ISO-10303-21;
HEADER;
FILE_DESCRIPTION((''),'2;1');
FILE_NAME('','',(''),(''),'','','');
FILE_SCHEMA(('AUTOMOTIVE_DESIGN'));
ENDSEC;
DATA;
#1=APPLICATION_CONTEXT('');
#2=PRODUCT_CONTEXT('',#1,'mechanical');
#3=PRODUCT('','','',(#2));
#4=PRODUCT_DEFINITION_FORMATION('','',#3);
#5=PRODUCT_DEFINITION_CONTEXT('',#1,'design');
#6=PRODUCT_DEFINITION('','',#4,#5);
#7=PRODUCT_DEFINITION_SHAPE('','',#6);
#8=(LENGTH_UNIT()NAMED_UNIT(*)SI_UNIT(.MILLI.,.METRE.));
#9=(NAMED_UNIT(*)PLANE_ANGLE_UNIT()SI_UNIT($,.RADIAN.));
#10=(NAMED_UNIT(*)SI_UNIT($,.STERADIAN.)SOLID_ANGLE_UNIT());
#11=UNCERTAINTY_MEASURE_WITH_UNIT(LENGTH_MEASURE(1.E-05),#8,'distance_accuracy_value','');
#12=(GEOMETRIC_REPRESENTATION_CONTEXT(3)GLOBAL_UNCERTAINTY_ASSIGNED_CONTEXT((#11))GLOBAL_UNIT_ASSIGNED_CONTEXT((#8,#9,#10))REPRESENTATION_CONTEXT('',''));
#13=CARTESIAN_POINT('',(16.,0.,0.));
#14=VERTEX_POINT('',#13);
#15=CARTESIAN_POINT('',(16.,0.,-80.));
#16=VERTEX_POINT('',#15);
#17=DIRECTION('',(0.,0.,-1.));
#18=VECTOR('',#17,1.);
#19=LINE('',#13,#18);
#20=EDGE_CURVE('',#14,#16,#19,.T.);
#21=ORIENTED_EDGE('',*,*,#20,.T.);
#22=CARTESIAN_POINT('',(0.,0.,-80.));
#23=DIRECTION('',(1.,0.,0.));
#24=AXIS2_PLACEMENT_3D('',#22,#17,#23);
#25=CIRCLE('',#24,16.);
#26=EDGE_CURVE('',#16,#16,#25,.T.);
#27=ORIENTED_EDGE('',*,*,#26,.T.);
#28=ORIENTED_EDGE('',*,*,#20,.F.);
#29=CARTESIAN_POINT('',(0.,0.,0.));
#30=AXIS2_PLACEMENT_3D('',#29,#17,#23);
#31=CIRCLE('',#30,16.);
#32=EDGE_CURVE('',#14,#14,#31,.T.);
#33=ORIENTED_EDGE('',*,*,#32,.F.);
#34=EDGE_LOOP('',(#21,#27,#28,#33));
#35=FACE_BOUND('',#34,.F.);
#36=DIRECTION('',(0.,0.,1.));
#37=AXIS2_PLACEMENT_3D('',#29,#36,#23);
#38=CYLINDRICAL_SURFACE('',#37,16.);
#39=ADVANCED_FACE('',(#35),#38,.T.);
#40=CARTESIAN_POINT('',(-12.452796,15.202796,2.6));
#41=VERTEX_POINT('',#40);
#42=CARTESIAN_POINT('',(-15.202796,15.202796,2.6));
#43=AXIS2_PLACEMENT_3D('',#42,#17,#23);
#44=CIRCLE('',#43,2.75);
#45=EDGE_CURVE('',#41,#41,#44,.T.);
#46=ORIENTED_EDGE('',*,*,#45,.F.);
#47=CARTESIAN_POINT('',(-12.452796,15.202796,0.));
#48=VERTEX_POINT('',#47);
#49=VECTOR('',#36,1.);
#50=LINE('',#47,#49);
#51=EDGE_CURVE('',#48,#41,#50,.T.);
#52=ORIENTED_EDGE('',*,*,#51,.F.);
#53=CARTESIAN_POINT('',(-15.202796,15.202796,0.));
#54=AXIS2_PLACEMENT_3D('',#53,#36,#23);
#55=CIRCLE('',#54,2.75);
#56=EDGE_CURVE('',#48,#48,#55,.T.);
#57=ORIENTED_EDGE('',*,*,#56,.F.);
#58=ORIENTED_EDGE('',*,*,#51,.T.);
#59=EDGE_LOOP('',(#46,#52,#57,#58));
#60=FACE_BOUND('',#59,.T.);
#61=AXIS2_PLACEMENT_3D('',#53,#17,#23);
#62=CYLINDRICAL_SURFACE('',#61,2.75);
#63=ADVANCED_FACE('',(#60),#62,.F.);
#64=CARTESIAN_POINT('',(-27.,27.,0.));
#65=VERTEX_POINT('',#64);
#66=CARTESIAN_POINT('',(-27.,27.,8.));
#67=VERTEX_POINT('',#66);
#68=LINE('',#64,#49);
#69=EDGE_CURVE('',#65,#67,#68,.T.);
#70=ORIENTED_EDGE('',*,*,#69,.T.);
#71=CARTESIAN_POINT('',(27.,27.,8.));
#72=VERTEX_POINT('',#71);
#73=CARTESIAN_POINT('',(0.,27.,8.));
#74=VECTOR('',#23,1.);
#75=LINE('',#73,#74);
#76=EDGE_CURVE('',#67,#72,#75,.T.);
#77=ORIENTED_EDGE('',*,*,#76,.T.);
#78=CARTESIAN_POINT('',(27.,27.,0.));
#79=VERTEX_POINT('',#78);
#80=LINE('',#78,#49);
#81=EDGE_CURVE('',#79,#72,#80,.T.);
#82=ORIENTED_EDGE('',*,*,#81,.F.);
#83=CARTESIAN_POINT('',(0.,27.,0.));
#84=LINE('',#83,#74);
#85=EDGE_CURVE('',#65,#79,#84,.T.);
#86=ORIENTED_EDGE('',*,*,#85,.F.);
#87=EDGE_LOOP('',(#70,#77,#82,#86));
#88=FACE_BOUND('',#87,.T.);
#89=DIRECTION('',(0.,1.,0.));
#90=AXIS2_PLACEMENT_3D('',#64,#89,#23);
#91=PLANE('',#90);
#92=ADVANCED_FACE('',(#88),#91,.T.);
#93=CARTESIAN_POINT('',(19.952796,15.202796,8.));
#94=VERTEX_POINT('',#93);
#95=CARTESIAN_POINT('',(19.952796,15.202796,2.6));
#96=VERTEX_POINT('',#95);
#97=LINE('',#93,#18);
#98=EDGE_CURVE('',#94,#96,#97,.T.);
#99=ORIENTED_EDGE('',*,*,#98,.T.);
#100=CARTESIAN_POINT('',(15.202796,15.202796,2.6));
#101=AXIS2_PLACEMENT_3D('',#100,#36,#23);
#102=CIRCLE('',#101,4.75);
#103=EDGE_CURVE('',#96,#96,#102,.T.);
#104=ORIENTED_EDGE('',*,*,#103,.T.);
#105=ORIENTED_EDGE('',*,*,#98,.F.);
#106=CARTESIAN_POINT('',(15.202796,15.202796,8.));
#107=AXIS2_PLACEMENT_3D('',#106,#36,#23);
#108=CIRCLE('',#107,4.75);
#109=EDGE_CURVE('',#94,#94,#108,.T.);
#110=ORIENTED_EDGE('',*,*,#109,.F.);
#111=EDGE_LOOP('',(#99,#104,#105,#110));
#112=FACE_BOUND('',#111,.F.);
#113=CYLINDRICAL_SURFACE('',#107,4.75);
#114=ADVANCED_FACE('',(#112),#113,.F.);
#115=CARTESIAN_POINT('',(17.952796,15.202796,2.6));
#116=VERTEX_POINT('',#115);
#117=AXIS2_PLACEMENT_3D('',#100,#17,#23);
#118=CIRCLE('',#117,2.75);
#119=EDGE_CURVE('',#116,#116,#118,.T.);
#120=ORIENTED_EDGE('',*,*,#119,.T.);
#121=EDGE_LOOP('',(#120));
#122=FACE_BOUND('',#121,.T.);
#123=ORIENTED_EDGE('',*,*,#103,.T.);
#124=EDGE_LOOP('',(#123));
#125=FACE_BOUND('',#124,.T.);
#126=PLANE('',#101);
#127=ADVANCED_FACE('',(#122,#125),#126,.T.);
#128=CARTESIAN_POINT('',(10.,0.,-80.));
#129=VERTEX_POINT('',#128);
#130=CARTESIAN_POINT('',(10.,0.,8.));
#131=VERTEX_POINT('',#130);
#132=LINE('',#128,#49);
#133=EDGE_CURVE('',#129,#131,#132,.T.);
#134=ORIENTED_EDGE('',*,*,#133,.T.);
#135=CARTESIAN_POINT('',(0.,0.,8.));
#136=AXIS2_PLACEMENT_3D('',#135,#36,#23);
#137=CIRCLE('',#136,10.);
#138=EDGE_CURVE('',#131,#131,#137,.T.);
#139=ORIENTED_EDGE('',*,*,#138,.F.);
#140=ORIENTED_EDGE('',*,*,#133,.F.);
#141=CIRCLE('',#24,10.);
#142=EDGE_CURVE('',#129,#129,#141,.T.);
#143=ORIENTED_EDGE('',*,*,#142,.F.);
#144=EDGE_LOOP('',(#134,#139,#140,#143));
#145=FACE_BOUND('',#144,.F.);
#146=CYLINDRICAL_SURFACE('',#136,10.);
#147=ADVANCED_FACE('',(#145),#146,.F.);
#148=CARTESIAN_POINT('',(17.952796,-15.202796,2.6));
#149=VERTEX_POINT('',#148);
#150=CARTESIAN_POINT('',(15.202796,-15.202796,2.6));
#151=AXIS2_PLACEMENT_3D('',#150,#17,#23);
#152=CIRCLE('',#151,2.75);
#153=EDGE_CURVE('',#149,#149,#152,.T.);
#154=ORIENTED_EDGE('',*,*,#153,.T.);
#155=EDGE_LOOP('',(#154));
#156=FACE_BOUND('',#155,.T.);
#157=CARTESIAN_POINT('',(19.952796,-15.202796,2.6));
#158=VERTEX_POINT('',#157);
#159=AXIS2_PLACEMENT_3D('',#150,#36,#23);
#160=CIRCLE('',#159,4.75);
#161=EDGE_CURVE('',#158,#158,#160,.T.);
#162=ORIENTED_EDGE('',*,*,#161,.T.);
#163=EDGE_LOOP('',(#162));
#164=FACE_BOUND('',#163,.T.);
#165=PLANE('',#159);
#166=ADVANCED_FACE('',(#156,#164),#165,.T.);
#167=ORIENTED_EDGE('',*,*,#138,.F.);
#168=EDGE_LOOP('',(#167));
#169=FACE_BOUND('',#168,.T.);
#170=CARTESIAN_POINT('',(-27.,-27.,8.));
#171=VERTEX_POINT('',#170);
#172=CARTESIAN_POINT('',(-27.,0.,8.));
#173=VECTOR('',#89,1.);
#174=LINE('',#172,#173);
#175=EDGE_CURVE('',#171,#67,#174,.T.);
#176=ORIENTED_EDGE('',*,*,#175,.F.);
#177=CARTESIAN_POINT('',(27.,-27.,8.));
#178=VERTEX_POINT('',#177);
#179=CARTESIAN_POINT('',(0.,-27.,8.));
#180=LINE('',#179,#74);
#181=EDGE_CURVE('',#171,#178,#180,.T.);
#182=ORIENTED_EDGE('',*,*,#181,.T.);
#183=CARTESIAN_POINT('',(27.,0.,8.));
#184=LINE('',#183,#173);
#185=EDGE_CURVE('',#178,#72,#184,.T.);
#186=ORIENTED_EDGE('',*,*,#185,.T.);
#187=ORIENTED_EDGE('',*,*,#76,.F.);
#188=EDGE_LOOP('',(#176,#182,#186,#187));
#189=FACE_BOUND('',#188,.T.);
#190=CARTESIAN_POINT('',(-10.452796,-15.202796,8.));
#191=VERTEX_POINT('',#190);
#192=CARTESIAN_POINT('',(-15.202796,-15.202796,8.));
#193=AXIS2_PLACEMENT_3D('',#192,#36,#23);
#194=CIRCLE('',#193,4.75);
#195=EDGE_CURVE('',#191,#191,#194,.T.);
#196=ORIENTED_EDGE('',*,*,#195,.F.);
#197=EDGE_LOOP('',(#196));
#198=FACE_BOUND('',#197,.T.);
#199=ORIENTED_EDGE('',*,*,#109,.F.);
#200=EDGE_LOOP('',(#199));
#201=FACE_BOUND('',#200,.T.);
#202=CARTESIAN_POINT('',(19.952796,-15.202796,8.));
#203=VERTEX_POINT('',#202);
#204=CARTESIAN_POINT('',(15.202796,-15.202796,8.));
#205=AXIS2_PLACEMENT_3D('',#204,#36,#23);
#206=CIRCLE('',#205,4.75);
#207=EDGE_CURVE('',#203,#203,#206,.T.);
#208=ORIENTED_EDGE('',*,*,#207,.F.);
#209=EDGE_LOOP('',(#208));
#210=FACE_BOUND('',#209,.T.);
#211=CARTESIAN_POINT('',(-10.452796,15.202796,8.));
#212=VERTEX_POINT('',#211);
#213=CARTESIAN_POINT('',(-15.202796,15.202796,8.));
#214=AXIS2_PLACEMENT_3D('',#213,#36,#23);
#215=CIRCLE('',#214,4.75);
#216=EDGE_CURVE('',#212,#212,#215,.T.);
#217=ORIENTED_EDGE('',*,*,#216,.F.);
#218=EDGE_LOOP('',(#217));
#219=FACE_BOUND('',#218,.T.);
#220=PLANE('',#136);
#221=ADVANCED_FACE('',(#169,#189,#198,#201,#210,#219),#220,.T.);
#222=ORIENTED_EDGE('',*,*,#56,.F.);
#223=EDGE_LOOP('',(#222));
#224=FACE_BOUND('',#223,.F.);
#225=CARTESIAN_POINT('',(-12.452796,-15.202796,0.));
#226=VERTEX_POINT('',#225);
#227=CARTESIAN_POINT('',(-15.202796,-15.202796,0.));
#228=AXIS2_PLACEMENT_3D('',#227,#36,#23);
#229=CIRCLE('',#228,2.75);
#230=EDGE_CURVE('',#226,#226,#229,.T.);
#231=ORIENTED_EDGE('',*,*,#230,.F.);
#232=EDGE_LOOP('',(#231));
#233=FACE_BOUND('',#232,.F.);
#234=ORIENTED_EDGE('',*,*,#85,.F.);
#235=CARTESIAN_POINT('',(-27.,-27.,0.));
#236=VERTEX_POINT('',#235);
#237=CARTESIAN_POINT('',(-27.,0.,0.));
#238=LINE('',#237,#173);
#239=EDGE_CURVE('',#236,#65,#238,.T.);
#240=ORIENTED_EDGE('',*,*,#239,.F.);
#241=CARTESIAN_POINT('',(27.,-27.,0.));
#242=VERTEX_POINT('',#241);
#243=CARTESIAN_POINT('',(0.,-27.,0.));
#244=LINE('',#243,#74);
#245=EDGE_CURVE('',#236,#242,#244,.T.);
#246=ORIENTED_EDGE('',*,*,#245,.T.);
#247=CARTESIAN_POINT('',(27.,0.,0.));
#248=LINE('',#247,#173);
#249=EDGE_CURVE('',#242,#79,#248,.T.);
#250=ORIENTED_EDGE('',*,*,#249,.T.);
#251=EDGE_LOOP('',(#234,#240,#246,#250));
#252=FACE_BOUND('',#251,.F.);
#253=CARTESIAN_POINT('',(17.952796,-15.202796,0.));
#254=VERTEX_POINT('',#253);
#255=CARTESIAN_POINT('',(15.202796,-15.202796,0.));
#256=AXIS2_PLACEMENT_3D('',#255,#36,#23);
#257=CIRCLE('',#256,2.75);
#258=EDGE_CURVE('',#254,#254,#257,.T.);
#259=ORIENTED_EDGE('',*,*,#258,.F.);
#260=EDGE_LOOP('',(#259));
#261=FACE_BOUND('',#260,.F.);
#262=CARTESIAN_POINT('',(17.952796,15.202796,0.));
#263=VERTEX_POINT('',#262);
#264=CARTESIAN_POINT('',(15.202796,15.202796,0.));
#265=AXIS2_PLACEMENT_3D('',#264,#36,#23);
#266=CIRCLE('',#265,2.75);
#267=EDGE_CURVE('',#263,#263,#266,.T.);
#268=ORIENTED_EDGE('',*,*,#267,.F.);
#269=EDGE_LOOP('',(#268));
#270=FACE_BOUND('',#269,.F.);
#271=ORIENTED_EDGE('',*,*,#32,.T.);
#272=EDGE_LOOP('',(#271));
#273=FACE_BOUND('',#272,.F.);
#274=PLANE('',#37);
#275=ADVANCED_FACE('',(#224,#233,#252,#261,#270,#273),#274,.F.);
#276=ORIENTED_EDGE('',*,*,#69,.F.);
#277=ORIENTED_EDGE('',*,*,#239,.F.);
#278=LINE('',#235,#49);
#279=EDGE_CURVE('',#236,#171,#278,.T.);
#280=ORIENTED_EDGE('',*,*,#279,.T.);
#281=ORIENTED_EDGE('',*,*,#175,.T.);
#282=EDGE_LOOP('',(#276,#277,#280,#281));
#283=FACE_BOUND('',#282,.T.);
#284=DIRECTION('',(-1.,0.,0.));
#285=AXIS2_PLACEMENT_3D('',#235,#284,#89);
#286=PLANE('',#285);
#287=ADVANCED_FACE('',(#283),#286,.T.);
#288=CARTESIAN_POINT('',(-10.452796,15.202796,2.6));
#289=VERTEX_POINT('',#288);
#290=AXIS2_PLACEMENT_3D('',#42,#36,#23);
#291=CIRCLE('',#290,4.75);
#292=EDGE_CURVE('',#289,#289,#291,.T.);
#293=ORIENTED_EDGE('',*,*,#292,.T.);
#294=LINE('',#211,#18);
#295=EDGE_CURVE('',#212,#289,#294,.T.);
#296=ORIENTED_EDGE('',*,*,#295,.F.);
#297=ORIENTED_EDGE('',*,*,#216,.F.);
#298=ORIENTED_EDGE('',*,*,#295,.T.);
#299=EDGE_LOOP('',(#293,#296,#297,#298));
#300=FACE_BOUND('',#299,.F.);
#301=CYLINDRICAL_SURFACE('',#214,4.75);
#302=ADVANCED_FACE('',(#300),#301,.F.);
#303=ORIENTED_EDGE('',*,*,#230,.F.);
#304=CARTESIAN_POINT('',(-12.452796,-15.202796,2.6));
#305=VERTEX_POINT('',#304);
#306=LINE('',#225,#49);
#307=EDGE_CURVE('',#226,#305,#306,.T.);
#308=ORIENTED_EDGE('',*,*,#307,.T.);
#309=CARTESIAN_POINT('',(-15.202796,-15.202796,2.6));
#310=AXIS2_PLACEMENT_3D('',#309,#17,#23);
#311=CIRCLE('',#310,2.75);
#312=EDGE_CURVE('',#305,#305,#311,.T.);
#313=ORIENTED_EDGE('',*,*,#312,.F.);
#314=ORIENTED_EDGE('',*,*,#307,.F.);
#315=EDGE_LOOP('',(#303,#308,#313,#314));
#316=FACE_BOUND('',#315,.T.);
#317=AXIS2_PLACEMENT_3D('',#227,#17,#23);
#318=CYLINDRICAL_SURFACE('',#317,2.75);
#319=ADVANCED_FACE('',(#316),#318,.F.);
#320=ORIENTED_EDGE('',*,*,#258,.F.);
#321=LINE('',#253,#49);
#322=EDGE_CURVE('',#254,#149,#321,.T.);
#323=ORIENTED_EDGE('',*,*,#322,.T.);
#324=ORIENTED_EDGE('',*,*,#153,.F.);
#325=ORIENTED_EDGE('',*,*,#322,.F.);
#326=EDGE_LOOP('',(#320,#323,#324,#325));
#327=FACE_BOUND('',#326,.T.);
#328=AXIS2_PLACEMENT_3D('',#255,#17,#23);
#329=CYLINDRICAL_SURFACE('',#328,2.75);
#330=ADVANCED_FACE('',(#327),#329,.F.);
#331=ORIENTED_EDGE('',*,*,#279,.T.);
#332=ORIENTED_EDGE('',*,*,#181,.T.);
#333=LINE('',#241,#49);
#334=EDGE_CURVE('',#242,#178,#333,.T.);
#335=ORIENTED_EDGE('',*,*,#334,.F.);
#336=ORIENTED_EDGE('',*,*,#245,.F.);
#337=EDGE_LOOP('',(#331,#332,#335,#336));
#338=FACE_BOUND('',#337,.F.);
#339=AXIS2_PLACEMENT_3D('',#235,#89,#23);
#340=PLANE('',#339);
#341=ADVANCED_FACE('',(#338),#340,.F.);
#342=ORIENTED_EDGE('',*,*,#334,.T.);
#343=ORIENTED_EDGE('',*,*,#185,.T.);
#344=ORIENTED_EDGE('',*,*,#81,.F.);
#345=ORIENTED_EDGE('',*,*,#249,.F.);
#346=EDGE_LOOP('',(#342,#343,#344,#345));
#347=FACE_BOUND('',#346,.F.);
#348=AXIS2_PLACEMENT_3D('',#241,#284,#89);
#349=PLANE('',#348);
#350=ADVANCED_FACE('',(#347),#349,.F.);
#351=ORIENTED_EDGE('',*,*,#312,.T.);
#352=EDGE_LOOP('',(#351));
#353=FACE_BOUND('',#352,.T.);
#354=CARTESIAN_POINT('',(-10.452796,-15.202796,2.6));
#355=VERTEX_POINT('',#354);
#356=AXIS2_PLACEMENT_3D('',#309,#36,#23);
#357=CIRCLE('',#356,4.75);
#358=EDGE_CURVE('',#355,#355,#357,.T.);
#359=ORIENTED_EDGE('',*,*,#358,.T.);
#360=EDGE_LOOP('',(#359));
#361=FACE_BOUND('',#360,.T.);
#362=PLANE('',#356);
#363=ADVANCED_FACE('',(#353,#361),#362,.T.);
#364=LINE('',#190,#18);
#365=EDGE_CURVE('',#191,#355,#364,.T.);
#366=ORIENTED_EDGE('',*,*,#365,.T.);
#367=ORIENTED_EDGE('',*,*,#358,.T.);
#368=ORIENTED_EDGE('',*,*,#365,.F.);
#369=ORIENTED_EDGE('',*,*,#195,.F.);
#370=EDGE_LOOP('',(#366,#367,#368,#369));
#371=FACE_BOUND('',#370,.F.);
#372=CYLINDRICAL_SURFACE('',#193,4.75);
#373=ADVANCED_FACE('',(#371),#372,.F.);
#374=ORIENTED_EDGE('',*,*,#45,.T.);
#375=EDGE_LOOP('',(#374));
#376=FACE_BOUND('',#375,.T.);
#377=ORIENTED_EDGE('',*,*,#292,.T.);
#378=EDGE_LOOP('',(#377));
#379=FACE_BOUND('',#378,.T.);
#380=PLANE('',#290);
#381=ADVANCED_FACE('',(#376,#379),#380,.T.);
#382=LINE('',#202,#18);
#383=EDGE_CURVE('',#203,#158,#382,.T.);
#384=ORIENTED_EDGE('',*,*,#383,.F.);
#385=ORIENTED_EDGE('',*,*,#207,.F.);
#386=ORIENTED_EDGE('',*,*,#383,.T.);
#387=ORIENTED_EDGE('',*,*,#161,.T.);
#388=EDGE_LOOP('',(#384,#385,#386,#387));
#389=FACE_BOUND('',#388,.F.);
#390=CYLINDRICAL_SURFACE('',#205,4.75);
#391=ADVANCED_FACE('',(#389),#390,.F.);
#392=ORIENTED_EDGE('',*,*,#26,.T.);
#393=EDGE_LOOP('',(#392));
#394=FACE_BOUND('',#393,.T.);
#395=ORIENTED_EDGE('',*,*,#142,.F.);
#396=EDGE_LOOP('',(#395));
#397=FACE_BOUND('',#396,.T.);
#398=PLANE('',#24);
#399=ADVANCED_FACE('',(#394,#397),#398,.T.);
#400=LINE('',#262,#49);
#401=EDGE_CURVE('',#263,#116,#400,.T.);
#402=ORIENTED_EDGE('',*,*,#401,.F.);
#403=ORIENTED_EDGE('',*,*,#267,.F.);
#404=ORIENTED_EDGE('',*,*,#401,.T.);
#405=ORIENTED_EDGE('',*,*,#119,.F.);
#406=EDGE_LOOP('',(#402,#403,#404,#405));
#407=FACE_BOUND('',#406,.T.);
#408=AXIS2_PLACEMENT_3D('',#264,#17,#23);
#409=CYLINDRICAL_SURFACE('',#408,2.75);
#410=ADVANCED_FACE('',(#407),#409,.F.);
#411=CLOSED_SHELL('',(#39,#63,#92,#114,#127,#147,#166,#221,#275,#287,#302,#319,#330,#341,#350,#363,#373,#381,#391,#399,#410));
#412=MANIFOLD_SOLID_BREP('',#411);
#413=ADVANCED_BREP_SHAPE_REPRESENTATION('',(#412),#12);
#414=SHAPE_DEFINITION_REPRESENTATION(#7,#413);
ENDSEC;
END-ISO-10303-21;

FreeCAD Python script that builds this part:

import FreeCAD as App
import Part
import Sketcher
from FreeCAD import Vector


def add_polygon(sketch, points):
    """Adds a closed chain of lines whose ends are joined by coincident constraints."""
    first, n = sketch.GeometryCount, len(points)
    for a, b in zip(points, points[1:] + points[:1]):
        sketch.addGeometry(Part.LineSegment(App.Vector(*a, 0), App.Vector(*b, 0)), False)
    for i in range(n):
        sketch.addConstraint(Sketcher.Constraint("Coincident", first + i, 2, first + (i + 1) % n, 1))

doc = App.newDocument("Part")
body = doc.addObject("PartDesign::Body", "Body")

sketch1 = body.newObject("Sketcher::SketchObject", "Sketch")
sketch1.AttachmentSupport = (doc.getObject("XY_Plane"), [""])
sketch1.MapMode = "FlatFace"
add_polygon(sketch1, [(-27, 27), (-27, -27), (27, -27), (27, 27)])
sketch1.addGeometry(Part.Circle(Vector(-15.2, -15.2, 0), Vector(0, 0, 1), 2.8), False)
sketch1.addGeometry(Part.Circle(Vector(15.2, -15.2, 0), Vector(0, 0, 1), 2.8), False)
sketch1.addGeometry(Part.Circle(Vector(-15.2, 15.2, 0), Vector(0, 0, 1), 2.8), False)
sketch1.addGeometry(Part.Circle(Vector(15.2, 15.2, 0), Vector(0, 0, 1), 2.8), False)
sketch1.addConstraint([
    Sketcher.Constraint("Vertical", 0),
    Sketcher.Constraint("Horizontal", 1),
    Sketcher.Constraint("Vertical", 2),
    Sketcher.Constraint("Horizontal", 3),
    Sketcher.Constraint("Equal", 4, 5),
    Sketcher.Constraint("Equal", 5, 6),
    Sketcher.Constraint("Equal", 6, 7),
    Sketcher.Constraint("Symmetric", 5, 3, 6, 3, -1, 1),
    Sketcher.Constraint("Symmetric", 4, 3, 7, 3, -1, 1),
    Sketcher.Constraint("Symmetric", 0, 2, 2, 2, -1, 1),
    Sketcher.Constraint("Symmetric", 4, 3, 5, 3, -2),
    Sketcher.Constraint("Equal", 3, 0),
    Sketcher.Constraint("Diameter", 4, 5.5),
    Sketcher.Constraint("DistanceX", 1, 1, 1, 2, 54.0),
    Sketcher.Constraint("DistanceX", 4, 3, 5, 3, 30.405592),
    Sketcher.Constraint("DistanceY", 4, 3, 6, 3, 30.405592),
])
pad1 = body.newObject("PartDesign::Pad", "Pad")
pad1.Profile = sketch1
pad1.Length = 8

sketch2 = body.newObject("Sketcher::SketchObject", "Sketch001")
sketch2.AttachmentSupport = (doc.getObject("XY_Plane"), [""])
sketch2.MapMode = "FlatFace"
sketch2.addGeometry([
    Part.Circle(Vector(0, 0, 0), Vector(0, 0, 1), 16),
    Part.Circle(Vector(0, 0, 0), Vector(0, 0, 1), 10),
], False)
sketch2.addConstraint([
    Sketcher.Constraint("Coincident", 0, 3, -1, 1),
    Sketcher.Constraint("Coincident", 1, 3, -1, 1),
    Sketcher.Constraint("Diameter", 0, 32.0),
    Sketcher.Constraint("Diameter", 1, 20.0),
])
pad2 = body.newObject("PartDesign::Pad", "Pad001")
pad2.Profile = sketch2
pad2.Length = 80
pad2.Reversed = True

sketch3 = body.newObject("Sketcher::SketchObject", "Sketch002")
sketch3.AttachmentSupport = (doc.getObject("XY_Plane"), [""])
sketch3.MapMode = "FlatFace"
sketch3.AttachmentOffset = App.Placement(Vector(0, 0, 8), App.Rotation())
sketch3.addGeometry([
    Part.Circle(Vector(-15.2, 15.2, 0), Vector(0, 0, 1), 4.8),
    Part.Circle(Vector(15.2, 15.2, 0), Vector(0, 0, 1), 4.8),
    Part.Circle(Vector(15.2, -15.2, 0), Vector(0, 0, 1), 4.8),
    Part.Circle(Vector(-15.2, -15.2, 0), Vector(0, 0, 1), 4.8),
], False)
sketch3.addConstraint([
    Sketcher.Constraint("Equal", 0, 1),
    Sketcher.Constraint("Equal", 1, 2),
    Sketcher.Constraint("Equal", 2, 3),
    Sketcher.Constraint("Symmetric", 0, 3, 2, 3, -1, 1),
    Sketcher.Constraint("Symmetric", 1, 3, 3, 3, -1, 1),
    Sketcher.Constraint("Symmetric", 0, 3, 1, 3, -2),
    Sketcher.Constraint("Diameter", 0, 9.5),
    Sketcher.Constraint("DistanceX", 0, 3, 1, 3, 30.405592),
    Sketcher.Constraint("DistanceY", 2, 3, 1, 3, 30.405592),
])
pocket1 = body.newObject("PartDesign::Pocket", "Pocket")
pocket1.Profile = sketch3
pocket1.Length = 5.4

sketch4 = body.newObject("Sketcher::SketchObject", "Sketch003")
sketch4.AttachmentSupport = (doc.getObject("XY_Plane"), [""])
sketch4.MapMode = "FlatFace"
sketch4.AttachmentOffset = App.Placement(Vector(0, 0, 8), App.Rotation())
sketch4.addGeometry(Part.Circle(Vector(0, 0, 0), Vector(0, 0, 1), 10), False)
sketch4.addConstraint([
    Sketcher.Constraint("Coincident", 0, 3, -1, 1),
    Sketcher.Constraint("Diameter", 0, 20.0),
])
pocket2 = body.newObject("PartDesign::Pocket", "Pocket001")
pocket2.Profile = sketch4
pocket2.Length = 25

doc.recompute()
